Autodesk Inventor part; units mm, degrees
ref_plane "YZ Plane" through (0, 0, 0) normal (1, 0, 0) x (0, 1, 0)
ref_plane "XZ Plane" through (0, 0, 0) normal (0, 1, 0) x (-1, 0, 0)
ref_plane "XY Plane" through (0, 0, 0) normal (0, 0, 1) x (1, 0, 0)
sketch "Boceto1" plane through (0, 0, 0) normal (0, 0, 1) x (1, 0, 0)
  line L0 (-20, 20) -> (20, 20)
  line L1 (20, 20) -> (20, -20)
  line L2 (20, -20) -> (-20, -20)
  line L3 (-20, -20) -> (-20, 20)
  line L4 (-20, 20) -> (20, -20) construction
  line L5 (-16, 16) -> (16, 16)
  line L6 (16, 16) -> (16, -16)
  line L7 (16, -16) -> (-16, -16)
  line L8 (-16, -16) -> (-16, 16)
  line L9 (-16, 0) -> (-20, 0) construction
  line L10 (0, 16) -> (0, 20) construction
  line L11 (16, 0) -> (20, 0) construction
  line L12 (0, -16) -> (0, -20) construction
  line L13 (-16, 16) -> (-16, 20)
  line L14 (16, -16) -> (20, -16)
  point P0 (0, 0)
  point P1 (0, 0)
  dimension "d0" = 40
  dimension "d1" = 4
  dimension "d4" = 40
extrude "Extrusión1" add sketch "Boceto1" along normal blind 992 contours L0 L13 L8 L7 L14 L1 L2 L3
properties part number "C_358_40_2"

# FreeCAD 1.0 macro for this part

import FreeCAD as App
import Part
import Sketcher
Q = App.Units.Quantity

doc = App.newDocument("Part")
body = doc.addObject("PartDesign::Body", "Body")

# Sketch on XY plane
sketch1 = body.newObject("Sketcher::SketchObject", "Sketch")
sketch1.AttachmentSupport = (doc.getObject("XY_Plane"), [""])
sketch1.MapMode = "FlatFace"
sketch1.addGeometry([
    Part.LineSegment(App.Vector(-16, 20, 0), App.Vector(-20, 20, 0)),  # 0
    Part.LineSegment(App.Vector(-20, 20, 0), App.Vector(-20, -20, 0)),  # 1
    Part.LineSegment(App.Vector(-20, -20, 0), App.Vector(20, -20, 0)),  # 2
    Part.LineSegment(App.Vector(20, -20, 0), App.Vector(20, -16, 0)),  # 3
    Part.LineSegment(App.Vector(20, -16, 0), App.Vector(-16, -16, 0)),  # 4
    Part.LineSegment(App.Vector(-16, -16, 0), App.Vector(-16, 20, 0)),  # 5
], False)
sketch1.addConstraint([
    Sketcher.Constraint("Coincident", 0, 2, 1, 1),
    Sketcher.Constraint("Coincident", 1, 2, 2, 1),
    Sketcher.Constraint("Coincident", 2, 2, 3, 1),
    Sketcher.Constraint("Coincident", 3, 2, 4, 1),
    Sketcher.Constraint("Coincident", 4, 2, 5, 1),
    Sketcher.Constraint("Coincident", 5, 2, 0, 1),
    Sketcher.Constraint("Horizontal", 0),
    Sketcher.Constraint("Vertical", 1),
    Sketcher.Constraint("Horizontal", 2),
    Sketcher.Constraint("Vertical", 3),
    Sketcher.Constraint("Horizontal", 4),
    Sketcher.Constraint("Vertical", 5),
    Sketcher.Constraint("Symmetric", 0, 2, 2, 2, -1, 1),
    Sketcher.Constraint("Equal", 2, 1),
    Sketcher.Constraint("Equal", 0, 3),
    Sketcher.Constraint("DistanceX", 0, 2, 0, 1, Q("4 mm")),
    Sketcher.Constraint("DistanceX", 2, 1, 2, 2, Q("40 mm")),
])
pad1 = body.newObject("PartDesign::Pad", "Pad")
pad1.Profile = sketch1
pad1.Length = 992

doc.recompute()
